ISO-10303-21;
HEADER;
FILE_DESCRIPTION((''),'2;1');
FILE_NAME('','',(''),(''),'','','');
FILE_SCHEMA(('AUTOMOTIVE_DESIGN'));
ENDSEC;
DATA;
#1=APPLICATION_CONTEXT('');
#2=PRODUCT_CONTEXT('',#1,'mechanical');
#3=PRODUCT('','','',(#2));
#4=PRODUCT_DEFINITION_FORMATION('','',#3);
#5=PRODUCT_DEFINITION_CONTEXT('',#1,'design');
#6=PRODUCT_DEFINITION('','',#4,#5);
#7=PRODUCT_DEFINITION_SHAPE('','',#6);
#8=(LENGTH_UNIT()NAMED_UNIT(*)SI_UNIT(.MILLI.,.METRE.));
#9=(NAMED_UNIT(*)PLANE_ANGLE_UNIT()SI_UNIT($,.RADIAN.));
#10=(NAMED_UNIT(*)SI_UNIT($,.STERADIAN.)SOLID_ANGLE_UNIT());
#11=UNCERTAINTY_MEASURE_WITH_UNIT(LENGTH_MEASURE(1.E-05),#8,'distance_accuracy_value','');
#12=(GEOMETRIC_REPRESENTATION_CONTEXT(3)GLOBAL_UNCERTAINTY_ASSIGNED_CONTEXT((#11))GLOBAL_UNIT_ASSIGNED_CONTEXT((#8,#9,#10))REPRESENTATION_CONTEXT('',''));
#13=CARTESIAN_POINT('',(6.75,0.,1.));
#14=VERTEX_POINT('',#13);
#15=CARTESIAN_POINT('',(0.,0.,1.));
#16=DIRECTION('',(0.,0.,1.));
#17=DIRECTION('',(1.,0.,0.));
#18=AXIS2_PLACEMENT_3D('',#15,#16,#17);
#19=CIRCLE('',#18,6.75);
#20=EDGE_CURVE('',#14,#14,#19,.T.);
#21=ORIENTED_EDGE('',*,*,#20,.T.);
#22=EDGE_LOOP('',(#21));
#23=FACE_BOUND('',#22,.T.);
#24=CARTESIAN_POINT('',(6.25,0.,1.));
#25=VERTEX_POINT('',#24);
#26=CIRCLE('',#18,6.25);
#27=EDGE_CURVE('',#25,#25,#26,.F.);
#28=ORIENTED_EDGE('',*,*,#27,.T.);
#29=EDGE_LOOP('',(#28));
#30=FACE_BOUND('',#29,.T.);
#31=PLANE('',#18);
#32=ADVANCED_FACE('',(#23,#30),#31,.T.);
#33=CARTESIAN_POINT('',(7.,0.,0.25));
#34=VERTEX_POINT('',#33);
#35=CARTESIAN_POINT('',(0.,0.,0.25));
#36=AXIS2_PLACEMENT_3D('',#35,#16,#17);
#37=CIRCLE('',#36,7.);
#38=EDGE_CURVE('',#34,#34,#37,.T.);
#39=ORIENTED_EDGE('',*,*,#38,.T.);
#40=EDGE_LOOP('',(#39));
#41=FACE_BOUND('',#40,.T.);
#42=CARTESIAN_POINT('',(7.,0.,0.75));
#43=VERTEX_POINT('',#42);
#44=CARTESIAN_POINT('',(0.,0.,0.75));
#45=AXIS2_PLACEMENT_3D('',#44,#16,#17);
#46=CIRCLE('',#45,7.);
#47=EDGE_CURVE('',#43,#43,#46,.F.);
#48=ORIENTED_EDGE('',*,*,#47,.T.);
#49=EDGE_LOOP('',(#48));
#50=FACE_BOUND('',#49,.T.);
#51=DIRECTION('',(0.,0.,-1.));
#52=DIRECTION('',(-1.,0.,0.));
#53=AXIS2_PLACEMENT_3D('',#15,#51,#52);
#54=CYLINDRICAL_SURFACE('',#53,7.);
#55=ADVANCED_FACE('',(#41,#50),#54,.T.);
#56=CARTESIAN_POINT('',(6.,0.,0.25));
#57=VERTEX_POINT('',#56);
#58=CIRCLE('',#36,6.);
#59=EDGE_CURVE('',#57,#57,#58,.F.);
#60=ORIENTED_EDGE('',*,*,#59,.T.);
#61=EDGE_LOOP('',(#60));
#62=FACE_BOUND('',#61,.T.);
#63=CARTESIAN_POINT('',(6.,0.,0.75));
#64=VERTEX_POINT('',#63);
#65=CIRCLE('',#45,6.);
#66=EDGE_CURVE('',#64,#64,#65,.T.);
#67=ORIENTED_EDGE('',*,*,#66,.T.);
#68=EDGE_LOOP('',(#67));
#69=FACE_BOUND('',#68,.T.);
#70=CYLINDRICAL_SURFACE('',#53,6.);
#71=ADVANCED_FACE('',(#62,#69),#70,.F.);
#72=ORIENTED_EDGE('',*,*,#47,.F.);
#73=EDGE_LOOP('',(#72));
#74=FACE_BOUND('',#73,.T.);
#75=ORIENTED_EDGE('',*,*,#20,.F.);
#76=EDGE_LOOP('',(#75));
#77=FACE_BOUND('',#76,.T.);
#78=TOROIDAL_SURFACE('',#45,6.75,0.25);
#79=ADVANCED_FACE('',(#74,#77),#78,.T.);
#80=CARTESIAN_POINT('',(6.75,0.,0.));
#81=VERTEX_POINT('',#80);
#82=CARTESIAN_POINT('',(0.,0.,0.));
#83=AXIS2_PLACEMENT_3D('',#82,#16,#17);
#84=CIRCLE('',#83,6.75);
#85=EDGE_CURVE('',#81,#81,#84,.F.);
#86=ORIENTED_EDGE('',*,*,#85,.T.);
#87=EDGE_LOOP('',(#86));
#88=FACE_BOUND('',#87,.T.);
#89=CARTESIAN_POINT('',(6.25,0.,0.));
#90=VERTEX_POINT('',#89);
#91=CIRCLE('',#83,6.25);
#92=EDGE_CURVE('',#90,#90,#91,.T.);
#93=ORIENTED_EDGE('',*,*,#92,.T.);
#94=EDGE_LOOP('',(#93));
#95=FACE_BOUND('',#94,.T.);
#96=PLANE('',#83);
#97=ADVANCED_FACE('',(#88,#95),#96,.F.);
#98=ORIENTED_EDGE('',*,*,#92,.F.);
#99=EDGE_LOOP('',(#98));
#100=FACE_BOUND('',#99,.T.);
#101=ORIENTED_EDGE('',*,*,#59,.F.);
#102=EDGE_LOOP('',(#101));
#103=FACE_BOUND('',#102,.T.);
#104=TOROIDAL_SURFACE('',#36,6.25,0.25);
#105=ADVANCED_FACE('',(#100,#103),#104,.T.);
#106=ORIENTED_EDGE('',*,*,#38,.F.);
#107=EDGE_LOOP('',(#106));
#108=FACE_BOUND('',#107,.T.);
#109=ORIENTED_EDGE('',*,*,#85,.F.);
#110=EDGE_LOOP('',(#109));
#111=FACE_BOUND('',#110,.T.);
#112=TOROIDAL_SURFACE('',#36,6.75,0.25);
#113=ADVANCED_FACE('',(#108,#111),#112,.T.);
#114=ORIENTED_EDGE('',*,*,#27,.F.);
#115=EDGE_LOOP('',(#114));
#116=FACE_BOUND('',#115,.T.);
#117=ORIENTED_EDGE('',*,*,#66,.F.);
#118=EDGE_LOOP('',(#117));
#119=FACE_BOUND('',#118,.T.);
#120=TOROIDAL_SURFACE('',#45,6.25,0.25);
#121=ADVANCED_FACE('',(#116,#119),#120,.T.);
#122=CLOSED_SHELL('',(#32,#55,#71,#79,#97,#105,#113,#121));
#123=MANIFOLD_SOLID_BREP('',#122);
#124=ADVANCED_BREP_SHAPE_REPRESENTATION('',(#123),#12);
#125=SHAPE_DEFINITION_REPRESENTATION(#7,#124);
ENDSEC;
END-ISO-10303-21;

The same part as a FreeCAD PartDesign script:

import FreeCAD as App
import Part
import Sketcher

V = App.Vector
Q = App.Units.Quantity


def edges_at(feature, points):
    """Names of the edges that pass closest to the given points."""
    edges = feature.Shape.Edges
    near = lambda p: min(range(len(edges)), key=lambda i: edges[i].distToShape(Part.Vertex(*p))[0])
    return sorted({f"Edge{near(p) + 1}" for p in points})

doc = App.newDocument("Part")
body = doc.addObject("PartDesign::Body", "Body")

# Sketch on XY plane
sketch1 = body.newObject("Sketcher::SketchObject", "Sketch")
sketch1.AttachmentSupport = (doc.getObject("XY_Plane"), [""])
sketch1.MapMode = "FlatFace"
sketch1.addGeometry([
    Part.Circle(V(0, 0, 0), V(0, 0, 1), 7),
    Part.Circle(V(0, 0, 0), V(0, 0, 1), 6),
], False)
sketch1.addConstraint([
    Sketcher.Constraint("Coincident", 0, 3, -1, 1),
    Sketcher.Constraint("Coincident", 1, 3, -1, 1),
    Sketcher.Constraint("Diameter", 0, Q("14 mm")),
    Sketcher.Constraint("Diameter", 1, Q("12 mm")),
])
pad1 = body.newObject("PartDesign::Pad", "Pad")
pad1.Profile = sketch1
pad1.Length = 1
doc.recompute()

fillet = body.newObject("PartDesign::Fillet", "Fillet")
fillet.Base = (pad1, edges_at(pad1, [(-7, 0, 0), (-6, 0, 0)]))
fillet.Radius = 0.25
doc.recompute()

fillet2 = body.newObject("PartDesign::Fillet", "Fillet001")
fillet2.Base = (fillet, edges_at(fillet, [(-7, 0, 1), (-6, 0, 1)]))
fillet2.Radius = 0.25

doc.recompute()
